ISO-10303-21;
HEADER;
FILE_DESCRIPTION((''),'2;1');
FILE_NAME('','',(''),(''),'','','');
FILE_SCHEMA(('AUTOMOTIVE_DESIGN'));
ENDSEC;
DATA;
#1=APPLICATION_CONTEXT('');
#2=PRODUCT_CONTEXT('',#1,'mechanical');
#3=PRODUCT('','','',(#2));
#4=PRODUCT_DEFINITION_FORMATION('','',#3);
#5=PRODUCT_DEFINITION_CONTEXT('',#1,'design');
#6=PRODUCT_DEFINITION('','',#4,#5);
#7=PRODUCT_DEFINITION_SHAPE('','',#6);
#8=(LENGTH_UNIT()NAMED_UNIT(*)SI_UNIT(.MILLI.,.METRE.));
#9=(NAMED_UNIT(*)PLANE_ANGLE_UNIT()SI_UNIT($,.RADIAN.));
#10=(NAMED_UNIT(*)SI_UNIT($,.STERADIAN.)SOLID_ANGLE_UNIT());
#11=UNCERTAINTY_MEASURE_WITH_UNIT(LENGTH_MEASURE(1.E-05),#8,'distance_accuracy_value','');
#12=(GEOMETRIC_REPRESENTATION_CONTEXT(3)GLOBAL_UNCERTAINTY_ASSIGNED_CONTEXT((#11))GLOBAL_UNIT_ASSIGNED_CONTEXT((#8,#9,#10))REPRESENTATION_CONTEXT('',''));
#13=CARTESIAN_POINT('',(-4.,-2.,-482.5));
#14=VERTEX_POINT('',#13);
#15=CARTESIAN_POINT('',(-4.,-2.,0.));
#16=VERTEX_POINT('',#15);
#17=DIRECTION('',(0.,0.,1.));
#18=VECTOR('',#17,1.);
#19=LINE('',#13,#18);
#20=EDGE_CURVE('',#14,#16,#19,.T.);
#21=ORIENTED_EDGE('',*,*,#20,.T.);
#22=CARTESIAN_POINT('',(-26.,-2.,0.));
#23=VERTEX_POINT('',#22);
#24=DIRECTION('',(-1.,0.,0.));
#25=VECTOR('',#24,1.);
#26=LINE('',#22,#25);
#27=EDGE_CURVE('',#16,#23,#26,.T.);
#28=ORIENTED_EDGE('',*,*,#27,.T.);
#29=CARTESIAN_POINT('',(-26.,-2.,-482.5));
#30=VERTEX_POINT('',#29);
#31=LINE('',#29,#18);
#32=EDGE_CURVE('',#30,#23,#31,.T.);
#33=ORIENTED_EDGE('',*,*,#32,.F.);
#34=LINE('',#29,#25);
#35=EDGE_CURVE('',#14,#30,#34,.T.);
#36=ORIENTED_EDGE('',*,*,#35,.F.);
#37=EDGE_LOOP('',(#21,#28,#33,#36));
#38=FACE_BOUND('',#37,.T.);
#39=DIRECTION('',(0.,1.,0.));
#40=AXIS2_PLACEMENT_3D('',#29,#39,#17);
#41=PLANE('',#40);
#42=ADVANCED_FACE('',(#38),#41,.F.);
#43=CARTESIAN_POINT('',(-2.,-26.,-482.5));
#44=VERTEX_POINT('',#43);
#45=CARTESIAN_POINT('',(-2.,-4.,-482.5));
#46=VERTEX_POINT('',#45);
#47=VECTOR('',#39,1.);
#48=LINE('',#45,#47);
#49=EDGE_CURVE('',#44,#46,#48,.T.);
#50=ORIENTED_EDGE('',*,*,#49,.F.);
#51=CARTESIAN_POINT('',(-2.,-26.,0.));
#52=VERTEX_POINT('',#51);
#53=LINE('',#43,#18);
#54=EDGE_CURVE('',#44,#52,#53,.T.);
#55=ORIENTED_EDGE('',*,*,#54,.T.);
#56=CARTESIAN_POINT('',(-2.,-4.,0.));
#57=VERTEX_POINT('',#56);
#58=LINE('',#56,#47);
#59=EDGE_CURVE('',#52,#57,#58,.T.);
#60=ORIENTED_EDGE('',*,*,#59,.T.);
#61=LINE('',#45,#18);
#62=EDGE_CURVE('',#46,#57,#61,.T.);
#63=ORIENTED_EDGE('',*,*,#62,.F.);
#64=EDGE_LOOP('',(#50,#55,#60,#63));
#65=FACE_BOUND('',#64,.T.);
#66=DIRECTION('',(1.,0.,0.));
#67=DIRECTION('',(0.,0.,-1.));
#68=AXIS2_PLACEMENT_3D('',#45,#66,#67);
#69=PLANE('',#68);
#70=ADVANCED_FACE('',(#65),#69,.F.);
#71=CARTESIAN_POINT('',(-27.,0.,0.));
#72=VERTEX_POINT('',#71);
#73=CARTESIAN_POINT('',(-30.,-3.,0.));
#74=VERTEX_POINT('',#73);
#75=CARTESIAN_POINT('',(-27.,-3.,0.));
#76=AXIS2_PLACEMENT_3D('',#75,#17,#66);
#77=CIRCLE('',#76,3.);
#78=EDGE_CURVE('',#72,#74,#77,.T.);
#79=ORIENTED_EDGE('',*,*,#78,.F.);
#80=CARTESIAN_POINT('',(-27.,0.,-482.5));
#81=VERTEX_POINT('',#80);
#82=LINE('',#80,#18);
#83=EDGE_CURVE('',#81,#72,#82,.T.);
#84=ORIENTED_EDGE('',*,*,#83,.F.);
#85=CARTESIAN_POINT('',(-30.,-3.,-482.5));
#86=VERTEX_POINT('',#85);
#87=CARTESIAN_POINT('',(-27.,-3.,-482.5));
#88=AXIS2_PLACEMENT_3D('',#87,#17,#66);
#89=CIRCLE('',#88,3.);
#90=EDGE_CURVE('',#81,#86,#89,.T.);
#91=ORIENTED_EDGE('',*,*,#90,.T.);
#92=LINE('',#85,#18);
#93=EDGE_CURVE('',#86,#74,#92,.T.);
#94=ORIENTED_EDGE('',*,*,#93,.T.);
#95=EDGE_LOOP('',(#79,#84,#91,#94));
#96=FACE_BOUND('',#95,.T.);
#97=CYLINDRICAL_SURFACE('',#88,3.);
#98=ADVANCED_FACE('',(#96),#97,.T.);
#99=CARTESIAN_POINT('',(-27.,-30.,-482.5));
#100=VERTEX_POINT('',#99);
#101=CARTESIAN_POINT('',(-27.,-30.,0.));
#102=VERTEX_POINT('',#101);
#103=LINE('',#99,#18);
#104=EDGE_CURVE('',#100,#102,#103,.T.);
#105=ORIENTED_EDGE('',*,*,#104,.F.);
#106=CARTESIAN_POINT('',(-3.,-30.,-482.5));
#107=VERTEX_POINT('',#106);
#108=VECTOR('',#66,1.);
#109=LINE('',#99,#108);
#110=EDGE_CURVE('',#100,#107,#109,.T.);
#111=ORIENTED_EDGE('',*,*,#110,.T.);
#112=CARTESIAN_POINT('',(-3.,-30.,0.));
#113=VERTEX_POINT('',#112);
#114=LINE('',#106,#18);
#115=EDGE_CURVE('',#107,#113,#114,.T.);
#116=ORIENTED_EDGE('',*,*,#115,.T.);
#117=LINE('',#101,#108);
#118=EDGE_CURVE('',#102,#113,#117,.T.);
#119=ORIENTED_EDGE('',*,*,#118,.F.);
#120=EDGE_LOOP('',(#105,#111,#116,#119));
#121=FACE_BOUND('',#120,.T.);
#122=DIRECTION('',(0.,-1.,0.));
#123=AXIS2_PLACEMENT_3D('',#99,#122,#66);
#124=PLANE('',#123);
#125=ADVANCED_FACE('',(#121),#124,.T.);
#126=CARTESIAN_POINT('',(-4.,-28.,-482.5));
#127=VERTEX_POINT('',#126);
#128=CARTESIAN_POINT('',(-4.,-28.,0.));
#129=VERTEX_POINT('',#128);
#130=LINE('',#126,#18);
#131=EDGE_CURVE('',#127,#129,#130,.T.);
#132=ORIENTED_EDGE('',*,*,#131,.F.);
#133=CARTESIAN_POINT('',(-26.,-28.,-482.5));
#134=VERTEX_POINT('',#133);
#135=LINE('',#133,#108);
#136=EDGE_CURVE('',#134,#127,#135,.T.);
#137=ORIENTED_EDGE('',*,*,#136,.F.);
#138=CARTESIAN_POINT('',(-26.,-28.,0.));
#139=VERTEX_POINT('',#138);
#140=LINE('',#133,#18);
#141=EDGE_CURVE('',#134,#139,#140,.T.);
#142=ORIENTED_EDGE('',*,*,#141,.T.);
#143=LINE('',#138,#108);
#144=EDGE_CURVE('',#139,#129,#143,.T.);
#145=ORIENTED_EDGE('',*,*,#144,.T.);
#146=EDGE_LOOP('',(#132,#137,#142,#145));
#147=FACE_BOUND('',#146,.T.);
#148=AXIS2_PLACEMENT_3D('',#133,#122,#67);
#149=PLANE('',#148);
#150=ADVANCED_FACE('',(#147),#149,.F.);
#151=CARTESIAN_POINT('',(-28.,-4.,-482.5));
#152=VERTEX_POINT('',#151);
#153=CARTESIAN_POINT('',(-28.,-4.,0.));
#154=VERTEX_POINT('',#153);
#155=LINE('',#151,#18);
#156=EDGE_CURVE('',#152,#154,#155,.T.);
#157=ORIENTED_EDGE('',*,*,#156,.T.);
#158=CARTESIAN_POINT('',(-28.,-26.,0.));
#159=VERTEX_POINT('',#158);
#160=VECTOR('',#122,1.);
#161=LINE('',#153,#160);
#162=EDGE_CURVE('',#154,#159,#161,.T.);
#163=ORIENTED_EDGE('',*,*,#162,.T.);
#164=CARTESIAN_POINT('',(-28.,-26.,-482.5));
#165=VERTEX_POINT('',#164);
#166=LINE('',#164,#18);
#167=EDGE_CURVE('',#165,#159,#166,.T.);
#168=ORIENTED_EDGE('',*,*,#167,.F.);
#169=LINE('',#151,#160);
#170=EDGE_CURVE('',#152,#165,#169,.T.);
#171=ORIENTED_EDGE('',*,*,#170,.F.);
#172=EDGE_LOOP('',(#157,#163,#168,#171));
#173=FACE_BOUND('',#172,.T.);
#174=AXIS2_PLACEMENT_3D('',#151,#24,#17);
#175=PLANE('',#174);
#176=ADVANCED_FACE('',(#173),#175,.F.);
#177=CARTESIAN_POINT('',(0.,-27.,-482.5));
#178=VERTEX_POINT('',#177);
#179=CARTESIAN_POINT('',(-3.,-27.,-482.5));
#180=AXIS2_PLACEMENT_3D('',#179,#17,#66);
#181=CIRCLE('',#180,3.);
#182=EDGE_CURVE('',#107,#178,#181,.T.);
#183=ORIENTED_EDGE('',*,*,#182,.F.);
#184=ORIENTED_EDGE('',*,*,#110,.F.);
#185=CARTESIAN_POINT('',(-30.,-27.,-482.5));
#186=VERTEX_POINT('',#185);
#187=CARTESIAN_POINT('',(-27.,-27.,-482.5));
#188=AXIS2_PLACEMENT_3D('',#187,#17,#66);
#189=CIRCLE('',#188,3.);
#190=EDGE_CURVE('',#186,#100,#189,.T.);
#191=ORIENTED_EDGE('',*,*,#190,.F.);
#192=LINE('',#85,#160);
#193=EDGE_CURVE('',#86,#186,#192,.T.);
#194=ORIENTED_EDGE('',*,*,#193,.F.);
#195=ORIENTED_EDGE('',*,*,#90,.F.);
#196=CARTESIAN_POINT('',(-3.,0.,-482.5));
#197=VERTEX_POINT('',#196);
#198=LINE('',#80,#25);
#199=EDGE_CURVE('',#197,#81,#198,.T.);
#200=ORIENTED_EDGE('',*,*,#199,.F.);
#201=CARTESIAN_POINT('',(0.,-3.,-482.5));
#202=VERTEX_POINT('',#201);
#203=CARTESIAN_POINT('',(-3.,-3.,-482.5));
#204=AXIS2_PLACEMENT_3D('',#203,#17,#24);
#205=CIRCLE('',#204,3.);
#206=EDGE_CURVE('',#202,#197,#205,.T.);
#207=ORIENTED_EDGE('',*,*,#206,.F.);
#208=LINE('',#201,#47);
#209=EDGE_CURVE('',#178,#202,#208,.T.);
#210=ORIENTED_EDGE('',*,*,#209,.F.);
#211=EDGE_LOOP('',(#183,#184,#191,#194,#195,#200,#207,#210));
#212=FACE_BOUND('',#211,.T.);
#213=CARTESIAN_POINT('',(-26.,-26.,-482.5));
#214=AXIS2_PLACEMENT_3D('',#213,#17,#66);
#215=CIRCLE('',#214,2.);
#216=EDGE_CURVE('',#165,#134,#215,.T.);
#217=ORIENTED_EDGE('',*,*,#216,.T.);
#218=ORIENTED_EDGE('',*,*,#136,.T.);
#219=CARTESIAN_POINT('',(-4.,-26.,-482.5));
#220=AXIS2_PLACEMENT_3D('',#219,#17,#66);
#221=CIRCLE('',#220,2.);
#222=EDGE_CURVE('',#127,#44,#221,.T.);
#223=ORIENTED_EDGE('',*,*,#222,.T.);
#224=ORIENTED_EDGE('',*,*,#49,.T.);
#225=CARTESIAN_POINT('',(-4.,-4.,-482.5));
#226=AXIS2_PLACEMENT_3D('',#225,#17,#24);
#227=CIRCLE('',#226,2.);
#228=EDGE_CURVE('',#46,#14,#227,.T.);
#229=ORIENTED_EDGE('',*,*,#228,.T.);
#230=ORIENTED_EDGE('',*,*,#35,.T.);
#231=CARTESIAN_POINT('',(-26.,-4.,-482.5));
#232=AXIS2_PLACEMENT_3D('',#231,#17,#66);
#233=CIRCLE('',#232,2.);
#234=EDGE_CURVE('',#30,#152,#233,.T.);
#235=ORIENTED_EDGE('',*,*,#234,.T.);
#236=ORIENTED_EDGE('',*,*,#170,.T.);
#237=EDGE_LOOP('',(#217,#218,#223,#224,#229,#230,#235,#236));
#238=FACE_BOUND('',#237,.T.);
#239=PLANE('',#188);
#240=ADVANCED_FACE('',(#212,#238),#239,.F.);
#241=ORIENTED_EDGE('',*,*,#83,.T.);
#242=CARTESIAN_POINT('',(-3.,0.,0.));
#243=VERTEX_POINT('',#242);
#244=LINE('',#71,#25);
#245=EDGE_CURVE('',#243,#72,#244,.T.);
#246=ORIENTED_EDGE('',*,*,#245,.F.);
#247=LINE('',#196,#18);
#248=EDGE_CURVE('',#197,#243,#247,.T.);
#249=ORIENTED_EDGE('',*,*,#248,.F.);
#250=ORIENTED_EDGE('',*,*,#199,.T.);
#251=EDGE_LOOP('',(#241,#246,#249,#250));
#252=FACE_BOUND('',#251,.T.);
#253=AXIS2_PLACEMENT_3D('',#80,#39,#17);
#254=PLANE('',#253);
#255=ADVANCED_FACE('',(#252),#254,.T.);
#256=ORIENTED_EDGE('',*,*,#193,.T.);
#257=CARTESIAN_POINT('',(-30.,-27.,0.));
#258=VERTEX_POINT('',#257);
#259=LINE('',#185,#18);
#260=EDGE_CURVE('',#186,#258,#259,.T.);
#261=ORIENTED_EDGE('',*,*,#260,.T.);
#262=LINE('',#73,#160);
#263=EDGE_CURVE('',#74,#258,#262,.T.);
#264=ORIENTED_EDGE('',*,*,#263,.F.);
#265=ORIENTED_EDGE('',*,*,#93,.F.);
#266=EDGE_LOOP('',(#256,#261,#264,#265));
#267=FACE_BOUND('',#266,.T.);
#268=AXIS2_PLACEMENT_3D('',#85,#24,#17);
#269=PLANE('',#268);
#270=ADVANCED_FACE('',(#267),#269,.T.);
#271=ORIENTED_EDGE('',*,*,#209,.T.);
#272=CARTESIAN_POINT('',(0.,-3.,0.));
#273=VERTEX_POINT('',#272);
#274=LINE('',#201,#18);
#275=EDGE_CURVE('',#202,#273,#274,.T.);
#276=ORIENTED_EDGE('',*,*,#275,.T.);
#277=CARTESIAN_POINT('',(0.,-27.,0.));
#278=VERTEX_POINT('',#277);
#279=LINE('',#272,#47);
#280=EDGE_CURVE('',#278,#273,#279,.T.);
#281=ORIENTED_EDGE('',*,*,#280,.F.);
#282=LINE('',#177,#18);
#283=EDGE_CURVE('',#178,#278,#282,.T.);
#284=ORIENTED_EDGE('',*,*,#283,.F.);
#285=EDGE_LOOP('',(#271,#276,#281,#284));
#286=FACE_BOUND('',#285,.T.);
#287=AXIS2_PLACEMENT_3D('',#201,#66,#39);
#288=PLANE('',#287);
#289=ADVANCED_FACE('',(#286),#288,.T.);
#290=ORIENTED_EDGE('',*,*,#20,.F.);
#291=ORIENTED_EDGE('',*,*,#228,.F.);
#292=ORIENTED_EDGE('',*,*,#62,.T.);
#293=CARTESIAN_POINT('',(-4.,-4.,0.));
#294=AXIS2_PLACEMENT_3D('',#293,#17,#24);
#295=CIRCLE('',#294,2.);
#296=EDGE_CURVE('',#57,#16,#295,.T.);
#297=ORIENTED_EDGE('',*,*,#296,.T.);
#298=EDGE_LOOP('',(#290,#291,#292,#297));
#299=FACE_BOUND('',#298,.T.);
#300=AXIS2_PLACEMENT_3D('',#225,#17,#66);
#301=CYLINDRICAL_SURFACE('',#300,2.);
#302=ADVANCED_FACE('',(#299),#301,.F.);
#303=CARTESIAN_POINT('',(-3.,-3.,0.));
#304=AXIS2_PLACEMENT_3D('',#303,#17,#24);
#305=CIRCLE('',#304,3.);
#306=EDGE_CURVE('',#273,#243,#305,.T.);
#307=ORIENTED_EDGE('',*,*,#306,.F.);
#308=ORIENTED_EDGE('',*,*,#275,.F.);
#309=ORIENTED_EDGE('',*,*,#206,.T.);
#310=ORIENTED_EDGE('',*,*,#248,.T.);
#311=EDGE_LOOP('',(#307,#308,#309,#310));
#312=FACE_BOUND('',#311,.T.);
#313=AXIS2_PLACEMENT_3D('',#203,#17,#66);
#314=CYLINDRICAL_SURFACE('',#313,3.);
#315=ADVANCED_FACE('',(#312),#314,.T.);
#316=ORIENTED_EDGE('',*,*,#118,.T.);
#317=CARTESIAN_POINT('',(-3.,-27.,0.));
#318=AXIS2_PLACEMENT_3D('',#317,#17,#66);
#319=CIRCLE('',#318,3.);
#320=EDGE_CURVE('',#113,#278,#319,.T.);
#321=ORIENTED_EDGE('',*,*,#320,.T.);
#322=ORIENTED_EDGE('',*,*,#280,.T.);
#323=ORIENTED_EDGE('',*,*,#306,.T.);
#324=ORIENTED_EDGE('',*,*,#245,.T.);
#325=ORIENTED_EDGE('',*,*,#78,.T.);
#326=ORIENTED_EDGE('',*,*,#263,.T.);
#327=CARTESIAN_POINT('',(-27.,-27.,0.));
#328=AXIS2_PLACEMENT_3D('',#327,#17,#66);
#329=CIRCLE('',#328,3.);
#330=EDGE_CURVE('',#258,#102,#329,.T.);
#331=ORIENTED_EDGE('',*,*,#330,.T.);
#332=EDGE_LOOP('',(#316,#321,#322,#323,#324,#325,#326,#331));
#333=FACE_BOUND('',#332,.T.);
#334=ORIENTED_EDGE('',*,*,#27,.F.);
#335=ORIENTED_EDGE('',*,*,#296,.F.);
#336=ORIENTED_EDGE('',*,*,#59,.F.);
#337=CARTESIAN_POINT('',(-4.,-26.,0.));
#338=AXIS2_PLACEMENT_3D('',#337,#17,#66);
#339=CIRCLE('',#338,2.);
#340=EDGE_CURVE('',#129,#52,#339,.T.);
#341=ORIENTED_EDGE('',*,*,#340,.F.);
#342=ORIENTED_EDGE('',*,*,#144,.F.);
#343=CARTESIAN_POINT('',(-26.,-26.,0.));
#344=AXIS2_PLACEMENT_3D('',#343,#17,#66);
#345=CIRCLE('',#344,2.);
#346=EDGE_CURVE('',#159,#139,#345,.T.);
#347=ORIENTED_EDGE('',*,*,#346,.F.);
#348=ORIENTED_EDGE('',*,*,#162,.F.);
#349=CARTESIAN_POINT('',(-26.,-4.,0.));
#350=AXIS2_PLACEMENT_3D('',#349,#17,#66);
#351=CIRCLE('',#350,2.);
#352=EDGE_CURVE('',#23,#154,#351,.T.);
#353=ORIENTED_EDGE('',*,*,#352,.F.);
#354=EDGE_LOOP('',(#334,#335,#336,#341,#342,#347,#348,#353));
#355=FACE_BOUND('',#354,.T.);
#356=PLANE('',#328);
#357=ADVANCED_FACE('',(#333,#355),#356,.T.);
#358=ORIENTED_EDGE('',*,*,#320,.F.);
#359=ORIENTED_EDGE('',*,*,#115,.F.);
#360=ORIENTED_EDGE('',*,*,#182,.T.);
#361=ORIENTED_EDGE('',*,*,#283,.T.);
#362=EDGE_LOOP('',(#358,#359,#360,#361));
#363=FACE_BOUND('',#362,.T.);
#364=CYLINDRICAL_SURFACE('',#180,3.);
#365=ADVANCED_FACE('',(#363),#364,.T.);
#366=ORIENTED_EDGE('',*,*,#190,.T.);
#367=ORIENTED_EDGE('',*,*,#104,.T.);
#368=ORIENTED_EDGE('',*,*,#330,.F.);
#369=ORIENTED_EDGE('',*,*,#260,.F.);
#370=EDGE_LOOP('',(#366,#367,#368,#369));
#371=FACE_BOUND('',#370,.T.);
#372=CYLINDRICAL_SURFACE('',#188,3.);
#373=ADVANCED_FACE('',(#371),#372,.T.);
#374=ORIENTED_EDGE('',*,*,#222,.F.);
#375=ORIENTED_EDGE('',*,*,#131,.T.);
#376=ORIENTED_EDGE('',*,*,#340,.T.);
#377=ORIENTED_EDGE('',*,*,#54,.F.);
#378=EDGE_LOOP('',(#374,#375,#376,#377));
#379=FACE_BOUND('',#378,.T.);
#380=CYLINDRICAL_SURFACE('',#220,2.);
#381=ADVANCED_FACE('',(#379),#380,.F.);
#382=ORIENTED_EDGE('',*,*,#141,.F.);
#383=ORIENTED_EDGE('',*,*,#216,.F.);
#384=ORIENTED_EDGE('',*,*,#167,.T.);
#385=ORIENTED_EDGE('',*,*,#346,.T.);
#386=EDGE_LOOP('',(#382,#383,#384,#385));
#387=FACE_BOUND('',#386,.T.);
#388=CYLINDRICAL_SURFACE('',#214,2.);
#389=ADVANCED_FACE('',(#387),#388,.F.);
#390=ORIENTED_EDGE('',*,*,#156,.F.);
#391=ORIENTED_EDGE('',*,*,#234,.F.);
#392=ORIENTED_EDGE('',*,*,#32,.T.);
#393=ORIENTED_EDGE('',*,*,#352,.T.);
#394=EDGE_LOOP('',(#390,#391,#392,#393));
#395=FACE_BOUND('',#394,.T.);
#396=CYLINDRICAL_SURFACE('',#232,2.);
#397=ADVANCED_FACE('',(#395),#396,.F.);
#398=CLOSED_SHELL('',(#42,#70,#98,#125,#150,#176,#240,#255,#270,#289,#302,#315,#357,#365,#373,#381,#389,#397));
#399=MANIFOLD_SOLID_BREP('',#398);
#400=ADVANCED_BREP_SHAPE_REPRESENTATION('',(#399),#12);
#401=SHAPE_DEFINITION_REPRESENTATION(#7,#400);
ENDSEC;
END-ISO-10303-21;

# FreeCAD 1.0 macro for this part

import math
import FreeCAD as App
import Part
import Sketcher
Q = App.Units.Quantity

doc = App.newDocument("Part")
params = doc.addObject("Spreadsheet::Sheet", "Params")
for row, (alias, value) in enumerate([
    ("sketch1_radius", "3 mm"),
    ("sketch1_radius2", "2 mm"),
    ("sketch1_width", "24 mm"),
    ("sketch1_width2", "22 mm"),
    ("pad1_length", "482.5 mm"),
], start=1):
    params.set(f"A{row}", alias)
    params.set(f"B{row}", "=" + value)
    params.setAlias(f"B{row}", alias)

body = doc.addObject("PartDesign::Body", "Body")

# Sketch on XY plane
sketch1 = doc.addObject("Sketcher::SketchObject", "Sketch")
body.addObject(sketch1)
sketch1.AttachmentSupport = (doc.XY_Plane, [""])
sketch1.MapMode = "FlatFace"
sketch1.addGeometry([
    Part.LineSegment(App.Vector(-3, 0, 0), App.Vector(-27, 0, 0)),  # 0
    Part.ArcOfCircle(Part.Circle(App.Vector(-27, -3, 0), App.Vector(0, 0, 1), 3), math.radians(90), math.radians(180)),  # 1
    Part.LineSegment(App.Vector(-30, -3, 0), App.Vector(-30, -27, 0)),  # 2
    Part.ArcOfCircle(Part.Circle(App.Vector(-27, -27, 0), App.Vector(0, 0, 1), 3), math.radians(180), math.radians(270)),  # 3
    Part.LineSegment(App.Vector(-27, -30, 0), App.Vector(-3, -30, 0)),  # 4
    Part.ArcOfCircle(Part.Circle(App.Vector(-3, -27, 0), App.Vector(0, 0, 1), 3), math.radians(-90), math.radians(0)),  # 5
    Part.LineSegment(App.Vector(0, -27, 0), App.Vector(0, -3, 0)),  # 6
    Part.ArcOfCircle(Part.Circle(App.Vector(-3, -3, 0), App.Vector(0, 0, 1), 3), math.radians(0), math.radians(90)),  # 7
    Part.LineSegment(App.Vector(-26, -2, 0), App.Vector(-4, -2, 0)),  # 8
    Part.ArcOfCircle(Part.Circle(App.Vector(-4, -4, 0), App.Vector(0, 0, 1), 2), math.radians(0), math.radians(90)),  # 9
    Part.LineSegment(App.Vector(-2, -4, 0), App.Vector(-2, -26, 0)),  # 10
    Part.ArcOfCircle(Part.Circle(App.Vector(-4, -26, 0), App.Vector(0, 0, 1), 2), math.radians(-90), math.radians(0)),  # 11
    Part.LineSegment(App.Vector(-4, -28, 0), App.Vector(-26, -28, 0)),  # 12
    Part.ArcOfCircle(Part.Circle(App.Vector(-26, -26, 0), App.Vector(0, 0, 1), 2), math.radians(-180), math.radians(-90)),  # 13
    Part.LineSegment(App.Vector(-28, -26, 0), App.Vector(-28, -4, 0)),  # 14
    Part.ArcOfCircle(Part.Circle(App.Vector(-26, -4, 0), App.Vector(0, 0, 1), 2), math.radians(90), math.radians(180)),  # 15
], False)
sketch1.addConstraint([
    Sketcher.Constraint("Tangent", 0, 2, 1, 1),
    Sketcher.Constraint("Tangent", 1, 2, 2, 1),
    Sketcher.Constraint("Tangent", 2, 2, 3, 1),
    Sketcher.Constraint("Tangent", 3, 2, 4, 1),
    Sketcher.Constraint("Tangent", 4, 2, 5, 1),
    Sketcher.Constraint("Tangent", 5, 2, 6, 1),
    Sketcher.Constraint("Tangent", 6, 2, 7, 1),
    Sketcher.Constraint("Tangent", 7, 2, 0, 1),
    Sketcher.Constraint("Tangent", 8, 2, 9, 2),
    Sketcher.Constraint("Tangent", 9, 1, 10, 1),
    Sketcher.Constraint("Tangent", 10, 2, 11, 2),
    Sketcher.Constraint("Tangent", 11, 1, 12, 1),
    Sketcher.Constraint("Tangent", 12, 2, 13, 2),
    Sketcher.Constraint("Tangent", 13, 1, 14, 1),
    Sketcher.Constraint("Tangent", 14, 2, 15, 2),
    Sketcher.Constraint("Tangent", 15, 1, 8, 1),
    Sketcher.Constraint("Horizontal", 0),
    Sketcher.Constraint("Vertical", 2),
    Sketcher.Constraint("Horizontal", 4),
    Sketcher.Constraint("Vertical", 6),
    Sketcher.Constraint("Horizontal", 8),
    Sketcher.Constraint("Vertical", 10),
    Sketcher.Constraint("Horizontal", 12),
    Sketcher.Constraint("Vertical", 14),
    Sketcher.Constraint("Equal", 1, 3),
    Sketcher.Constraint("Equal", 3, 5),
    Sketcher.Constraint("Equal", 5, 7),
    Sketcher.Constraint("Equal", 9, 11),
    Sketcher.Constraint("Equal", 11, 13),
    Sketcher.Constraint("Equal", 13, 15),
    Sketcher.Constraint("PointOnObject", 0, 2, -1),
    Sketcher.Constraint("PointOnObject", 5, 2, -2),
    Sketcher.Constraint("Equal", 4, 2),
    Sketcher.Constraint("Equal", 12, 10),
    Sketcher.Constraint("Radius", 1, Q("3 mm")),
    Sketcher.Constraint("Radius", 9, Q("2 mm")),
    Sketcher.Constraint("DistanceX", 0, 2, 0, 1, Q("24 mm")),
    Sketcher.Constraint("DistanceX", 8, 1, 8, 2, Q("22 mm")),
    Sketcher.Constraint("DistanceX", 9, 3, -1, 1, Q("4 mm")),
    Sketcher.Constraint("DistanceY", 9, 3, -1, 1, Q("4 mm")),
])
sketch1.setExpression("Constraints[34]", "Params.sketch1_radius")
sketch1.setExpression("Constraints[35]", "Params.sketch1_radius2")
sketch1.setExpression("Constraints[36]", "Params.sketch1_width")
sketch1.setExpression("Constraints[37]", "Params.sketch1_width2")
pad1 = doc.addObject("PartDesign::Pad", "Pad")
body.addObject(pad1)
pad1.Profile = sketch1
pad1.setExpression("Length", "Params.pad1_length")
pad1.Reversed = True

doc.recompute()
